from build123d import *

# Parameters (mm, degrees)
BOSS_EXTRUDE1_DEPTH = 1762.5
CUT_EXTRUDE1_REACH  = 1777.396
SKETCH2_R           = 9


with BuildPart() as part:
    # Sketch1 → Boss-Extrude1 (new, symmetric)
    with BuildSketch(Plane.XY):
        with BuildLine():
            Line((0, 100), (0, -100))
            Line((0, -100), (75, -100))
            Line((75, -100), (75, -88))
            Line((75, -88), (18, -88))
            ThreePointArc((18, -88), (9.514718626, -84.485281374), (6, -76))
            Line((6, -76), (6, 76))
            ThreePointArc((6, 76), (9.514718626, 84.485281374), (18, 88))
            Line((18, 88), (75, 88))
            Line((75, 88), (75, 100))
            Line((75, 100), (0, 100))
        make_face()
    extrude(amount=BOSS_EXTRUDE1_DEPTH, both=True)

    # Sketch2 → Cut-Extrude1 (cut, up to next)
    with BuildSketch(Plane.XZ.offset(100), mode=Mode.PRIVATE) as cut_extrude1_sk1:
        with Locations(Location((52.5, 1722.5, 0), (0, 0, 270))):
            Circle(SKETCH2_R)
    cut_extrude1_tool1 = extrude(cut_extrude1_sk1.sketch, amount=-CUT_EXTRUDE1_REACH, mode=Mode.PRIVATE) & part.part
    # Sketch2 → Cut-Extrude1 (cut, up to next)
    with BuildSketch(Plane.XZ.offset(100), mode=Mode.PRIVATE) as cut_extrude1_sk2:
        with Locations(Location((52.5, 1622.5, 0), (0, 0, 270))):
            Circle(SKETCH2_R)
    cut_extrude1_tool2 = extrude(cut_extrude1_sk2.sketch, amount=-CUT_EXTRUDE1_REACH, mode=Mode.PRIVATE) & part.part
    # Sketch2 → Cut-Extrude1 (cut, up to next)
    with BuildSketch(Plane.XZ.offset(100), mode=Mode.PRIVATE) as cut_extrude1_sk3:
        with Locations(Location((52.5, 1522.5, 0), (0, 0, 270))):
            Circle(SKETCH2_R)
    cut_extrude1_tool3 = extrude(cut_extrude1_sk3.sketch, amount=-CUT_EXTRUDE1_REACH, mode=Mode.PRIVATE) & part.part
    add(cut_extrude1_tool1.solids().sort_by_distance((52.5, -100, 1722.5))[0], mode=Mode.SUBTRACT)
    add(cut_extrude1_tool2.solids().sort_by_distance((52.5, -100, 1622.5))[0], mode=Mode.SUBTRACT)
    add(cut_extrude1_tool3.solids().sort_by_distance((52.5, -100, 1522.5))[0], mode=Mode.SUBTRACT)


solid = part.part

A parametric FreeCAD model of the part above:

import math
import FreeCAD as App
import Part
import Sketcher

V = App.Vector

doc = App.newDocument("Part")
body = doc.addObject("PartDesign::Body", "Body")

sketch1 = body.newObject("Sketcher::SketchObject", "Sketch")
sketch1.AttachmentSupport = (doc.getObject("XY_Plane"), [""])
sketch1.MapMode = "FlatFace"
sketch1.addGeometry(Part.LineSegment(V(0, 100, 0), V(0, -100, 0)), False)
sketch1.addGeometry(Part.LineSegment(V(0, -100, 0), V(75, -100, 0)), False)
sketch1.addGeometry(Part.LineSegment(V(75, -100, 0), V(75, -88, 0)), False)
sketch1.addGeometry(Part.LineSegment(V(75, -88, 0), V(18, -88, 0)), False)
sketch1.addGeometry(Part.ArcOfCircle(Part.Circle(V(18, -76, 0), V(0, 0, 1), 12), math.radians(-180), math.radians(-90)), False)
sketch1.addGeometry(Part.LineSegment(V(6, -76, 0), V(6, 76, 0)), False)
sketch1.addGeometry(Part.ArcOfCircle(Part.Circle(V(18, 76, 0), V(0, 0, 1), 12), math.radians(90), math.radians(180)), False)
sketch1.addGeometry(Part.LineSegment(V(18, 88, 0), V(75, 88, 0)), False)
sketch1.addGeometry(Part.LineSegment(V(75, 88, 0), V(75, 100, 0)), False)
sketch1.addGeometry(Part.LineSegment(V(75, 100, 0), V(0, 100, 0)), False)
sketch1.addConstraint(Sketcher.Constraint("Coincident", 0, 2, 1, 1))
sketch1.addConstraint(Sketcher.Constraint("Coincident", 1, 2, 2, 1))
sketch1.addConstraint(Sketcher.Constraint("Coincident", 2, 2, 3, 1))
sketch1.addConstraint(Sketcher.Constraint("Tangent", 3, 2, 4, 2))
sketch1.addConstraint(Sketcher.Constraint("Tangent", 4, 1, 5, 1))
sketch1.addConstraint(Sketcher.Constraint("Tangent", 5, 2, 6, 2))
sketch1.addConstraint(Sketcher.Constraint("Tangent", 6, 1, 7, 1))
sketch1.addConstraint(Sketcher.Constraint("Coincident", 7, 2, 8, 1))
sketch1.addConstraint(Sketcher.Constraint("Coincident", 8, 2, 9, 1))
sketch1.addConstraint(Sketcher.Constraint("Coincident", 9, 2, 0, 1))
sketch1.addConstraint(Sketcher.Constraint("Vertical", 0))
sketch1.addConstraint(Sketcher.Constraint("Horizontal", 1))
sketch1.addConstraint(Sketcher.Constraint("Vertical", 2))
sketch1.addConstraint(Sketcher.Constraint("Horizontal", 3))
sketch1.addConstraint(Sketcher.Constraint("Vertical", 5))
sketch1.addConstraint(Sketcher.Constraint("Horizontal", 7))
sketch1.addConstraint(Sketcher.Constraint("Vertical", 8))
sketch1.addConstraint(Sketcher.Constraint("Horizontal", 9))
sketch1.addConstraint(Sketcher.Constraint("Equal", 4, 6))
sketch1.addConstraint(Sketcher.Constraint("Symmetric", 0, 2, 9, 2, -1, 1))
sketch1.addConstraint(Sketcher.Constraint("Symmetric", 2, 2, 7, 2, -1))
sketch1.addConstraint(Sketcher.Constraint("Radius", 4, 12.0))
sketch1.addConstraint(Sketcher.Constraint("DistanceX", 1, 1, 1, 2, 75.0))
sketch1.addConstraint(Sketcher.Constraint("DistanceX", 3, 2, 3, 1, 57.0))
sketch1.addConstraint(Sketcher.Constraint("DistanceY", 0, 2, 0, 1, 200.0))
sketch1.addConstraint(Sketcher.Constraint("DistanceY", 2, 1, 2, 2, 12.0))
pad1 = body.newObject("PartDesign::Pad", "Pad")
pad1.Profile = sketch1
pad1.Length = 3525
pad1.Midplane = True

sketch2 = body.newObject("Sketcher::SketchObject", "Sketch001")
sketch2.AttachmentSupport = (doc.getObject("XZ_Plane"), [""])
sketch2.MapMode = "FlatFace"
sketch2.AttachmentOffset = App.Placement(V(0, 0, 100), App.Rotation())
sketch2.addGeometry(Part.Circle(V(52, 1722, 0), V(0, 0, 1), 9), False)
sketch2.addConstraint(Sketcher.Constraint("Diameter", 0, 18.0))
sketch2.addConstraint(Sketcher.Constraint("DistanceX", -1, 1, 0, 3, 52.5))
sketch2.addConstraint(Sketcher.Constraint("DistanceY", -1, 1, 0, 3, 1722.5))
pocket1 = body.newObject("PartDesign::Pocket", "Pocket")
pocket1.Profile = sketch2
pocket1.Type = "UpToFirst"

sketch3 = body.newObject("Sketcher::SketchObject", "Sketch002")
sketch3.AttachmentSupport = (doc.getObject("XZ_Plane"), [""])
sketch3.MapMode = "FlatFace"
sketch3.AttachmentOffset = App.Placement(V(0, 0, 100), App.Rotation())
sketch3.addGeometry(Part.Circle(V(52, 1622, 0), V(0, 0, 1), 9), False)
sketch3.addConstraint(Sketcher.Constraint("Diameter", 0, 18.0))
sketch3.addConstraint(Sketcher.Constraint("DistanceX", -1, 1, 0, 3, 52.5))
sketch3.addConstraint(Sketcher.Constraint("DistanceY", -1, 1, 0, 3, 1622.5))
pocket2 = body.newObject("PartDesign::Pocket", "Pocket001")
pocket2.Profile = sketch3
pocket2.Type = "UpToFirst"

sketch4 = body.newObject("Sketcher::SketchObject", "Sketch003")
sketch4.AttachmentSupport = (doc.getObject("XZ_Plane"), [""])
sketch4.MapMode = "FlatFace"
sketch4.AttachmentOffset = App.Placement(V(0, 0, 100), App.Rotation())
sketch4.addGeometry(Part.Circle(V(52, 1522, 0), V(0, 0, 1), 9), False)
sketch4.addConstraint(Sketcher.Constraint("Diameter", 0, 18.0))
sketch4.addConstraint(Sketcher.Constraint("DistanceX", -1, 1, 0, 3, 52.5))
sketch4.addConstraint(Sketcher.Constraint("DistanceY", -1, 1, 0, 3, 1522.5))
pocket3 = body.newObject("PartDesign::Pocket", "Pocket002")
pocket3.Profile = sketch4
pocket3.Type = "UpToFirst"

doc.recompute()
